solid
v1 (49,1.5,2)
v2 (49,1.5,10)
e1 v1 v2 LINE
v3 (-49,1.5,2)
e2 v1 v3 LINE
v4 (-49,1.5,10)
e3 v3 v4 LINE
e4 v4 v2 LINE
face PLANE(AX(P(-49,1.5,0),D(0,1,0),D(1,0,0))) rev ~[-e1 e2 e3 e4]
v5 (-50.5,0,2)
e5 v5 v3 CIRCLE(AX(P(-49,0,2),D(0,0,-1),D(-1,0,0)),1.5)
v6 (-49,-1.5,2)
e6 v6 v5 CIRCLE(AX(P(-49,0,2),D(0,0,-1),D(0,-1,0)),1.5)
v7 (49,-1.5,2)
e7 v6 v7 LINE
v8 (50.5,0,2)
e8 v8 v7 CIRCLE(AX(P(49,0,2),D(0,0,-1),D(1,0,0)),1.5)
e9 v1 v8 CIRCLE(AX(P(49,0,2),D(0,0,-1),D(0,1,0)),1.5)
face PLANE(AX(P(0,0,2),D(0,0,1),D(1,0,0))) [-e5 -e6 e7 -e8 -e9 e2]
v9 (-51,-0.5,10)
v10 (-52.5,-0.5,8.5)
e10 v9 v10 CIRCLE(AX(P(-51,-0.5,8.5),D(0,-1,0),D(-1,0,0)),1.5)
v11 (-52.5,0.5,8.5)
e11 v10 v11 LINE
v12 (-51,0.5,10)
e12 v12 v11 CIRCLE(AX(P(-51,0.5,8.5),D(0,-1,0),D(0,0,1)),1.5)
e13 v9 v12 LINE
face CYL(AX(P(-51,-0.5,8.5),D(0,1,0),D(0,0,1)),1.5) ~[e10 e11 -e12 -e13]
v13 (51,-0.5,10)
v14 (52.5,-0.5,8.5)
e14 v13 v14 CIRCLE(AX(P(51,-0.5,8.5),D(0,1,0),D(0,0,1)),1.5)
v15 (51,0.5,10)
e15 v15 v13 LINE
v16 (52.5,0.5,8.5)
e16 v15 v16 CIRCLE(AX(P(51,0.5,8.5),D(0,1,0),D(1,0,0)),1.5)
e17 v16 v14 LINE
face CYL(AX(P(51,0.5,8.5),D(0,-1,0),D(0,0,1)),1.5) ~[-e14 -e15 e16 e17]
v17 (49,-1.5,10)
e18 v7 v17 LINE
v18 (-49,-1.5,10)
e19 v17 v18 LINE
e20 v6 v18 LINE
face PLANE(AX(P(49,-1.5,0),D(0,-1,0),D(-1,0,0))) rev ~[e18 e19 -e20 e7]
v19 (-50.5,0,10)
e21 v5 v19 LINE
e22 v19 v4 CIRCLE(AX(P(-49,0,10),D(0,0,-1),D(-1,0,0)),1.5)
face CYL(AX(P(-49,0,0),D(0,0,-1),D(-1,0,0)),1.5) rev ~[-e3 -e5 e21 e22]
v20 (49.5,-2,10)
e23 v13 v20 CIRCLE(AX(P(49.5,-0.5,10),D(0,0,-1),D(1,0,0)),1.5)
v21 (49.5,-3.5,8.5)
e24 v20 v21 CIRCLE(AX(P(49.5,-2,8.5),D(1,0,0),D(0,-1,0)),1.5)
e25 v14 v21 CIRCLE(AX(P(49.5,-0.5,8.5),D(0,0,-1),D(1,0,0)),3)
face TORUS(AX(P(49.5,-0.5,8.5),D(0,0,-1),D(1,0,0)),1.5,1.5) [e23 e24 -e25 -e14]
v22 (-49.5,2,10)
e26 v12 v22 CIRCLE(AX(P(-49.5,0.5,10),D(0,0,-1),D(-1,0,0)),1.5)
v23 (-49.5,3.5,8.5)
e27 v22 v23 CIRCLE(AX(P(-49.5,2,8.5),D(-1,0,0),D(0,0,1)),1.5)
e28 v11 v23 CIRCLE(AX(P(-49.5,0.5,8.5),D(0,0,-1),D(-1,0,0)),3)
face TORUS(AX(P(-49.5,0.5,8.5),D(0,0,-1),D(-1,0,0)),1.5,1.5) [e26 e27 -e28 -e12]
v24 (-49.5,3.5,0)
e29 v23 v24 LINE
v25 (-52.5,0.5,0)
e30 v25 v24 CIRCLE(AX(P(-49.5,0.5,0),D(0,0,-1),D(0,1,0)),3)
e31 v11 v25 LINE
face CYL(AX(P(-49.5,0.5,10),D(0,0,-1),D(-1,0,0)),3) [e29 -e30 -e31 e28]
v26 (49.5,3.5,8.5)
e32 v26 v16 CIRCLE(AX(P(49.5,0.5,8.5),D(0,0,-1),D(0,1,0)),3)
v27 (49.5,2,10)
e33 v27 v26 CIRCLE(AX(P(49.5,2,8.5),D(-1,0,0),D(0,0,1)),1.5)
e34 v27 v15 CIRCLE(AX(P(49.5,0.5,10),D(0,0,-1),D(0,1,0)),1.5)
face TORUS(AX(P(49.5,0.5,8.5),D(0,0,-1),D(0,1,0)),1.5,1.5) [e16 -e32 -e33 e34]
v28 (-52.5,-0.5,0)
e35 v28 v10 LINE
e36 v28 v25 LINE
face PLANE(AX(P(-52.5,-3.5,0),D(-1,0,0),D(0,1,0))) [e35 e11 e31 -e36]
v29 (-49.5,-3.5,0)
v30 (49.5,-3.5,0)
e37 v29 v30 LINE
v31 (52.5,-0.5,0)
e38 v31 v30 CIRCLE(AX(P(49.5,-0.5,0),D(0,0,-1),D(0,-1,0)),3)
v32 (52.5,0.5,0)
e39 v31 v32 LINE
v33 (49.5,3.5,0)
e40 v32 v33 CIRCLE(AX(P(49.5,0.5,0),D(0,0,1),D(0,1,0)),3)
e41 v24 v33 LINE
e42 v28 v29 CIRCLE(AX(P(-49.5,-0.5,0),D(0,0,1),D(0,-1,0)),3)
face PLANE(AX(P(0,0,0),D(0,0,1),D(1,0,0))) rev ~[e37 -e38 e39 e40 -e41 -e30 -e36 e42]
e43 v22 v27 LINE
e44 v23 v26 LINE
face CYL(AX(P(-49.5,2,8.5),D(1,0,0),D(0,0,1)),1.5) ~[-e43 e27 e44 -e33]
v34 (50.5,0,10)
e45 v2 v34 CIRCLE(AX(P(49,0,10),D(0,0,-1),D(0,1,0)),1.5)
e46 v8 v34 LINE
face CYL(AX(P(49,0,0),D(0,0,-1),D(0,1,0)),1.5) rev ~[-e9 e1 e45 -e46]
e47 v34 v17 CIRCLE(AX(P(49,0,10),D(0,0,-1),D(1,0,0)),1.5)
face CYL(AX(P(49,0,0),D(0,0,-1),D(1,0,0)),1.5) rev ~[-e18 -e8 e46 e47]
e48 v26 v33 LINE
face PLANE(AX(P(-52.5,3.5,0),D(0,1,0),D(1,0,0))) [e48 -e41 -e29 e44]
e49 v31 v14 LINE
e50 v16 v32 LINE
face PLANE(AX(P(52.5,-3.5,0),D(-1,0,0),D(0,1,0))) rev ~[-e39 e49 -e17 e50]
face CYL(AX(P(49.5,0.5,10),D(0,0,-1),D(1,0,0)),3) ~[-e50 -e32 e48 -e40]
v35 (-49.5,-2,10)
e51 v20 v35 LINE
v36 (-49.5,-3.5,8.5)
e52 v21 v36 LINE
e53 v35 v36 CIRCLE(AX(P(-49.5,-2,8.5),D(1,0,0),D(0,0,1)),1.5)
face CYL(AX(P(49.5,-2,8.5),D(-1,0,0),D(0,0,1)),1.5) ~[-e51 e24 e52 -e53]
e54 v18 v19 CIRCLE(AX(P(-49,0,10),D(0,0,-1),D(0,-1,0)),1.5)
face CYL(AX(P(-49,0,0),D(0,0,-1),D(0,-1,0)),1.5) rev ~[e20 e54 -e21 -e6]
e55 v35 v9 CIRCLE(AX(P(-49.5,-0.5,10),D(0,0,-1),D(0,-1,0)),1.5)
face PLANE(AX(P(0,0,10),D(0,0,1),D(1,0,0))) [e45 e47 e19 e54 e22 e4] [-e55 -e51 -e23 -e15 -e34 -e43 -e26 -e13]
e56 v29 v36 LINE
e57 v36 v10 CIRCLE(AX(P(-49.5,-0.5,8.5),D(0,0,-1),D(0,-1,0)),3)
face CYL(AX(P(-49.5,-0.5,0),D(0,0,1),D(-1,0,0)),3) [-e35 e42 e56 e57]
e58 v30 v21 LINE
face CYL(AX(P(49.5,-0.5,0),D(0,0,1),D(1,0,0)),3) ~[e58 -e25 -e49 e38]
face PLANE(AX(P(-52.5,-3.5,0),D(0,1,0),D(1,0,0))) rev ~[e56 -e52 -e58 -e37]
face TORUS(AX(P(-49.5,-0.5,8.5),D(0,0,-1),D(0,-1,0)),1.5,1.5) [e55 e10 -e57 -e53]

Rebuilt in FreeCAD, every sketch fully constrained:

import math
import FreeCAD as App
import Part
import Sketcher
Q = App.Units.Quantity


def edges_at(feature, points):
    """Names of the edges that pass closest to the given points."""
    edges = feature.Shape.Edges
    near = lambda p: min(range(len(edges)), key=lambda i: edges[i].distToShape(Part.Vertex(*p))[0])
    return sorted({f"Edge{near(p) + 1}" for p in points})


def add_polygon(sketch, points):
    """Adds a closed chain of lines whose ends are joined by coincident constraints."""
    first, n = sketch.GeometryCount, len(points)
    for a, b in zip(points, points[1:] + points[:1]):
        sketch.addGeometry(Part.LineSegment(App.Vector(*a, 0), App.Vector(*b, 0)), False)
    for i in range(n):
        sketch.addConstraint(Sketcher.Constraint("Coincident", first + i, 2, first + (i + 1) % n, 1))

doc = App.newDocument("Part")
params = doc.addObject("Spreadsheet::Sheet", "Params")
for row, (alias, value) in enumerate([
    ("sketch1_width", "105 mm"),
    ("sketch1_height", "7 mm"),
    ("pad1_length", "2 mm"),
    ("sketch2_radius", "1.5 mm"),
    ("sketch2_width", "105 mm"),
    ("sketch2_width2", "98 mm"),
    ("sketch2_height", "7 mm"),
    ("pad2_length", "10 mm"),
    ("fillet_radius", "3 mm"),
    ("fillet2_radius", "1.5 mm"),
], start=1):
    params.set(f"A{row}", alias)
    params.set(f"B{row}", "=" + value)
    params.setAlias(f"B{row}", alias)

body = doc.addObject("PartDesign::Body", "Body")

sketch1 = body.newObject("Sketcher::SketchObject", "Sketch")
sketch1.AttachmentSupport = (doc.getObject("XY_Plane"), [""])
sketch1.MapMode = "FlatFace"
add_polygon(sketch1, [(-52.5, 3.5), (-52.5, -3.5), (52.5, -3.5), (52.5, 3.5)])
sketch1.addConstraint(Sketcher.Constraint("Vertical", 0))
sketch1.addConstraint(Sketcher.Constraint("Horizontal", 1))
sketch1.addConstraint(Sketcher.Constraint("Vertical", 2))
sketch1.addConstraint(Sketcher.Constraint("Horizontal", 3))
sketch1.addConstraint(Sketcher.Constraint("Symmetric", 0, 2, 2, 2, -1, 1))
sketch1.addConstraint(Sketcher.Constraint("DistanceX", 1, 1, 1, 2, Q("105 mm")))
sketch1.addConstraint(Sketcher.Constraint("DistanceY", 0, 2, 0, 1, Q("7 mm")))
sketch1.setExpression("Constraints[9]", "Params.sketch1_width")
sketch1.setExpression("Constraints[10]", "Params.sketch1_height")
pad1 = body.newObject("PartDesign::Pad", "Pad")
pad1.Profile = sketch1
pad1.setExpression("Length", "Params.pad1_length")

sketch2 = body.newObject("Sketcher::SketchObject", "Sketch001")
sketch2.AttachmentSupport = (doc.getObject("XY_Plane"), [""])
sketch2.MapMode = "FlatFace"
add_polygon(sketch2, [(-52.5, 3.5), (-52.5, -3.5), (52.5, -3.5), (52.5, 3.5)])
sketch2.addGeometry(Part.ArcOfCircle(Part.Circle(App.Vector(-49, 0, 0), App.Vector(0, 0, 1), 1.5), math.radians(180), math.radians(270)), False)
sketch2.addGeometry(Part.ArcOfCircle(Part.Circle(App.Vector(-49, 0, 0), App.Vector(0, 0, 1), 1.5), math.radians(90), math.radians(180)), False)
sketch2.addGeometry(Part.LineSegment(App.Vector(-49, 1.5, 0), App.Vector(49, 1.5, 0)), False)
sketch2.addGeometry(Part.ArcOfCircle(Part.Circle(App.Vector(49, 0, 0), App.Vector(0, 0, 1), 1.5), math.radians(0), math.radians(90)), False)
sketch2.addGeometry(Part.ArcOfCircle(Part.Circle(App.Vector(49, 0, 0), App.Vector(0, 0, 1), 1.5), math.radians(-90), math.radians(0)), False)
sketch2.addGeometry(Part.LineSegment(App.Vector(49, -1.5, 0), App.Vector(-49, -1.5, 0)), False)
sketch2.addConstraint(Sketcher.Constraint("Tangent", 4, 1, 5, 2))
sketch2.addConstraint(Sketcher.Constraint("Tangent", 5, 1, 6, 1))
sketch2.addConstraint(Sketcher.Constraint("Tangent", 6, 2, 7, 2))
sketch2.addConstraint(Sketcher.Constraint("Tangent", 7, 1, 8, 2))
sketch2.addConstraint(Sketcher.Constraint("Tangent", 8, 1, 9, 1))
sketch2.addConstraint(Sketcher.Constraint("Tangent", 9, 2, 4, 2))
sketch2.addConstraint(Sketcher.Constraint("Vertical", 0))
sketch2.addConstraint(Sketcher.Constraint("Horizontal", 1))
sketch2.addConstraint(Sketcher.Constraint("Vertical", 2))
sketch2.addConstraint(Sketcher.Constraint("Horizontal", 3))
sketch2.addConstraint(Sketcher.Constraint("Horizontal", 6))
sketch2.addConstraint(Sketcher.Constraint("Horizontal", 9))
sketch2.addConstraint(Sketcher.Constraint("Equal", 4, 5))
sketch2.addConstraint(Sketcher.Constraint("Equal", 5, 7))
sketch2.addConstraint(Sketcher.Constraint("Symmetric", 4, 3, 7, 3, -1, 1))
sketch2.addConstraint(Sketcher.Constraint("Symmetric", 0, 2, 2, 2, -1, 1))
sketch2.addConstraint(Sketcher.Constraint("PointOnObject", 4, 1, -1))
sketch2.addConstraint(Sketcher.Constraint("PointOnObject", 7, 1, -1))
sketch2.addConstraint(Sketcher.Constraint("Radius", 4, Q("1.5 mm")))
sketch2.addConstraint(Sketcher.Constraint("DistanceX", 1, 1, 1, 2, Q("105 mm")))
sketch2.addConstraint(Sketcher.Constraint("DistanceX", 6, 1, 6, 2, Q("98 mm")))
sketch2.addConstraint(Sketcher.Constraint("DistanceY", 0, 2, 0, 1, Q("7 mm")))
sketch2.setExpression("Constraints[22]", "Params.sketch2_radius")
sketch2.setExpression("Constraints[23]", "Params.sketch2_width")
sketch2.setExpression("Constraints[24]", "Params.sketch2_width2")
sketch2.setExpression("Constraints[25]", "Params.sketch2_height")
pad2 = body.newObject("PartDesign::Pad", "Pad001")
pad2.Profile = sketch2
pad2.setExpression("Length", "Params.pad2_length")
doc.recompute()

fillet = body.newObject("PartDesign::Fillet", "Fillet")
fillet.Base = (pad2, edges_at(pad2, [
    (-52.5, -3.5, 5),
    (52.5, -3.5, 5),
    (52.5, 3.5, 5),
    (-52.5, 3.5, 5),
]))
fillet.setExpression("Radius", "Params.fillet_radius")
doc.recompute()

fillet2 = body.newObject("PartDesign::Fillet", "Fillet001")
fillet2.Base = (fillet, edges_at(fillet, [(0, 3.5, 10)]))
fillet2.setExpression("Radius", "Params.fillet2_radius")

doc.recompute()
